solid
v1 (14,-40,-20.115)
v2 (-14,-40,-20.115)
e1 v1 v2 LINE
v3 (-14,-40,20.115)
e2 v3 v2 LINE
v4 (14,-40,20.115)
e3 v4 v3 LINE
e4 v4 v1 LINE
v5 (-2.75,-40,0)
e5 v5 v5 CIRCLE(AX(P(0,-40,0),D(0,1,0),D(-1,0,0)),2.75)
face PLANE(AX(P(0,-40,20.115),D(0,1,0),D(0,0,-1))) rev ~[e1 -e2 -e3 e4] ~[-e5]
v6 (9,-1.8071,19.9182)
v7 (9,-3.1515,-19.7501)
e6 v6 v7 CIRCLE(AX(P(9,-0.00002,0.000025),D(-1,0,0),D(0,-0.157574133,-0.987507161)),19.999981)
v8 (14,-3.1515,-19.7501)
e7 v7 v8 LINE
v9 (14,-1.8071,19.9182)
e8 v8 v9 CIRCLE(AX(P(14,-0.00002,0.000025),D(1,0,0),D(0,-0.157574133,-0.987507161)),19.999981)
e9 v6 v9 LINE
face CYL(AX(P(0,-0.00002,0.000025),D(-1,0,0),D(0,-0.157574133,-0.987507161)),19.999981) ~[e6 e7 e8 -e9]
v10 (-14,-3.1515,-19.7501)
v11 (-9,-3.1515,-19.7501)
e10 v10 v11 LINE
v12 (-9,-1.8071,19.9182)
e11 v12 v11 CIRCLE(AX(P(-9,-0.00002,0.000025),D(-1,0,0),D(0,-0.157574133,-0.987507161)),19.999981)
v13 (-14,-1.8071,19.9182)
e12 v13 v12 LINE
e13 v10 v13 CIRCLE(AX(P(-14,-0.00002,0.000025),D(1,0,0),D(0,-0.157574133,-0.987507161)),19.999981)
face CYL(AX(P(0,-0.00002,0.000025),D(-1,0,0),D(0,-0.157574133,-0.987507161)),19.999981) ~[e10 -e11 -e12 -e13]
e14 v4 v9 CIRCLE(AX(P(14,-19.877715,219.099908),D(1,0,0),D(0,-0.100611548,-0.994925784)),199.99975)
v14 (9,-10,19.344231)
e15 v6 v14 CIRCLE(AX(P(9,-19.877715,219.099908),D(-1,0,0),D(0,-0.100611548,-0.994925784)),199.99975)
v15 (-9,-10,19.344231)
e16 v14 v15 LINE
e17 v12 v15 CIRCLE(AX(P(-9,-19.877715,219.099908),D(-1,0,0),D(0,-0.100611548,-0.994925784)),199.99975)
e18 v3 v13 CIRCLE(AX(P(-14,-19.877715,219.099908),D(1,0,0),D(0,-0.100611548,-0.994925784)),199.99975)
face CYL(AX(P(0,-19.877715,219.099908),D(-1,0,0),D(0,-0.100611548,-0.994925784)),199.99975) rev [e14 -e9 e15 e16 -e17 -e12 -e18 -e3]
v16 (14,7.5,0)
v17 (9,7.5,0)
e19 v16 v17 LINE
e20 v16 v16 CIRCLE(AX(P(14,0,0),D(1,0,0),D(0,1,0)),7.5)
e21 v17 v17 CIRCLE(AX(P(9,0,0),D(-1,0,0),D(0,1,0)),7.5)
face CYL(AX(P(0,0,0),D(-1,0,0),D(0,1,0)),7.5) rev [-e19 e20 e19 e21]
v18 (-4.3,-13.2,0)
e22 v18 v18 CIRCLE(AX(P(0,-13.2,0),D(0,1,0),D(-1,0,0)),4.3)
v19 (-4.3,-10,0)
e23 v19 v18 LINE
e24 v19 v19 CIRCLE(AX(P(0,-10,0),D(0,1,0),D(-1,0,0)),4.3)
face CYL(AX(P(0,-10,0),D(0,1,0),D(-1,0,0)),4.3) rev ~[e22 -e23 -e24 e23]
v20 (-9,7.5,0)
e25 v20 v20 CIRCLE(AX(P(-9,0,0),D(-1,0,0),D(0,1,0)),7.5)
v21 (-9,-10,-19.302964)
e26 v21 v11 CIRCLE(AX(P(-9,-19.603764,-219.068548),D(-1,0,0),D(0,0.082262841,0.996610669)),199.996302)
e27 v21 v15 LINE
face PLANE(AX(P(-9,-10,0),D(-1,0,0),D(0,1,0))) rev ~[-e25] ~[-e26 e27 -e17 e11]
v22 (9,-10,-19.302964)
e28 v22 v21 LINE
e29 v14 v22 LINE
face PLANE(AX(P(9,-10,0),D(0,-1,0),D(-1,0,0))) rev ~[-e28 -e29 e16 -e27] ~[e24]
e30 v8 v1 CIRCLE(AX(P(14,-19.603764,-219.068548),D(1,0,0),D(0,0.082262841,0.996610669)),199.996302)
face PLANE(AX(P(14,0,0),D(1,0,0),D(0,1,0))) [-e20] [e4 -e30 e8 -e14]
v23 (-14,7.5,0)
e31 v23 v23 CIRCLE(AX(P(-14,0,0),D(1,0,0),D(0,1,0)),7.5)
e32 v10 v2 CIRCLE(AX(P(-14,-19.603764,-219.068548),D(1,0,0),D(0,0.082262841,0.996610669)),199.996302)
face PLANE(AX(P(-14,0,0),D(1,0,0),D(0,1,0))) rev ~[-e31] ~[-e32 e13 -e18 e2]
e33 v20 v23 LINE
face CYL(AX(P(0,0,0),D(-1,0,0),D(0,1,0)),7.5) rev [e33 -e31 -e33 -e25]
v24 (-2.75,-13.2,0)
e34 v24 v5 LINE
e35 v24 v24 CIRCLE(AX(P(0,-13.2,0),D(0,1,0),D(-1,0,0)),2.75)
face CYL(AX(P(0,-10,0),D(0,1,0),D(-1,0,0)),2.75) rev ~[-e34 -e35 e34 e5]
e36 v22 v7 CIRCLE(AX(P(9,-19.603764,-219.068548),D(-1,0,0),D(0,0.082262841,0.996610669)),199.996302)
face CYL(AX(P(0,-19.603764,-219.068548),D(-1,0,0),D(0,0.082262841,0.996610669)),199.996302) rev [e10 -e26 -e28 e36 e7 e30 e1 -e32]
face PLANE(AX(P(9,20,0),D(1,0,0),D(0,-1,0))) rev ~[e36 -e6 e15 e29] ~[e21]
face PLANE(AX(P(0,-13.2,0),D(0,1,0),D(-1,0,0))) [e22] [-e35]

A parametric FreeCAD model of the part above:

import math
import FreeCAD as App
import Part
import Sketcher

V = App.Vector


def add_polygon(sketch, points):
    """Adds a closed chain of lines whose ends are joined by coincident constraints."""
    first, n = sketch.GeometryCount, len(points)
    for a, b in zip(points, points[1:] + points[:1]):
        sketch.addGeometry(Part.LineSegment(App.Vector(*a, 0), App.Vector(*b, 0)), False)
    for i in range(n):
        sketch.addConstraint(Sketcher.Constraint("Coincident", first + i, 2, first + (i + 1) % n, 1))

doc = App.newDocument("Part")
body = doc.addObject("PartDesign::Body", "Body")

# Sketch on YZ plane
sketch1 = body.newObject("Sketcher::SketchObject", "Sketch")
sketch1.AttachmentSupport = (doc.getObject("YZ_Plane"), [""])
sketch1.MapMode = "FlatFace"
sketch1.addGeometry([
    Part.ArcOfCircle(Part.Circle(V(-20, -219, 0), V(0, 0, 1), 200), math.radians(85.28), math.radians(95.85)),  # 0
    Part.ArcOfCircle(Part.Circle(V(0, 0, 0), V(0, 0, 1), 20), math.radians(-99), math.radians(95)),  # 1
    Part.ArcOfCircle(Part.Circle(V(-20, 219, 0), V(0, 0, 1), 200), math.radians(-95.77), math.radians(-84.82)),  # 2
    Part.LineSegment(V(-40, 20, 0), V(-40, -20, 0)),  # 3
    Part.Circle(V(0, 0, 0), V(0, 0, 1), 8),  # 4
], False)
sketch1.addConstraint([
    Sketcher.Constraint("Coincident", 0, 1, 1, 1),
    Sketcher.Constraint("Tangent", 1, 2, 2, 2),
    Sketcher.Constraint("Coincident", 2, 1, 3, 1),
    Sketcher.Constraint("Coincident", 3, 2, 0, 2),
    Sketcher.Constraint("Vertical", 3),
    Sketcher.Constraint("Coincident", 1, 3, -1, 1),
    Sketcher.Constraint("Coincident", 4, 3, -1, 1),
    Sketcher.Constraint("Diameter", 4, 15.0),
    Sketcher.Constraint("Radius", 1, 20.0),
    Sketcher.Constraint("Radius", 2, 200.0),
    Sketcher.Constraint("DistanceX", 2, 1, -1, 1, 40.0),
    Sketcher.Constraint("DistanceY", 3, 2, 3, 1, 40.23),
    Sketcher.Constraint("Radius", 0, 199.9963),
    Sketcher.Constraint("DistanceY", 0, 1, -1, 1, 19.75),
    Sketcher.Constraint("DistanceX", 1, 2, -1, 1, 1.807),
])
pad1 = body.newObject("PartDesign::Pad", "Pad")
pad1.Profile = sketch1
pad1.Length = 28
pad1.Midplane = True

# Sketch on XY plane
sketch2 = body.newObject("Sketcher::SketchObject", "Sketch001")
sketch2.AttachmentSupport = (doc.getObject("XY_Plane"), [""])
sketch2.MapMode = "FlatFace"
add_polygon(sketch2, [(9, 20), (-9, 20), (-9, -10), (9, -10)])  # lines 0-3
sketch2.addConstraint([
    Sketcher.Constraint("Horizontal", 0),
    Sketcher.Constraint("Vertical", 1),
    Sketcher.Constraint("Horizontal", 2),
    Sketcher.Constraint("Vertical", 3),
    Sketcher.Constraint("DistanceX", 0, 2, 0, 1, 18.0),
    Sketcher.Constraint("DistanceY", 1, 2, -1, 1, 10.0),
    Sketcher.Constraint("DistanceY", 1, 2, 1, 1, 30.0),
    Sketcher.Constraint("DistanceX", 0, 2, -1, 1, 9.0),
])
pocket1 = body.newObject("PartDesign::Pocket", "Pocket")
pocket1.Profile = sketch2
pocket1.Type = "ThroughAll"
pocket1.Midplane = True

# Sketch on XZ plane
sketch3 = body.newObject("Sketcher::SketchObject", "Sketch002")
sketch3.AttachmentSupport = (doc.getObject("XZ_Plane"), [""])
sketch3.MapMode = "FlatFace"
sketch3.AttachmentOffset = App.Placement(V(0, 0, 10), App.Rotation())
sketch3.addGeometry(Part.Circle(V(0, 0, 0), V(0, 0, 1), 4.3), False)
sketch3.addConstraint([
    Sketcher.Constraint("Coincident", 0, 3, -1, 1),
    Sketcher.Constraint("Diameter", 0, 8.6),
])
pocket2 = body.newObject("PartDesign::Pocket", "Pocket001")
pocket2.Profile = sketch3
pocket2.Length = 3.2
pocket2.Reversed = True

# Sketch on XZ plane
sketch4 = body.newObject("Sketcher::SketchObject", "Sketch003")
sketch4.AttachmentSupport = (doc.getObject("XZ_Plane"), [""])
sketch4.MapMode = "FlatFace"
sketch4.AttachmentOffset = App.Placement(V(0, 0, 10), App.Rotation())
sketch4.addGeometry(Part.Circle(V(0, 0, 0), V(0, 0, 1), 2.8), False)
sketch4.addConstraint([
    Sketcher.Constraint("Coincident", 0, 3, -1, 1),
    Sketcher.Constraint("Diameter", 0, 5.5),
])
pocket3 = body.newObject("PartDesign::Pocket", "Pocket002")
pocket3.Profile = sketch4
pocket3.Type = "ThroughAll"
pocket3.Reversed = True

doc.recompute()
